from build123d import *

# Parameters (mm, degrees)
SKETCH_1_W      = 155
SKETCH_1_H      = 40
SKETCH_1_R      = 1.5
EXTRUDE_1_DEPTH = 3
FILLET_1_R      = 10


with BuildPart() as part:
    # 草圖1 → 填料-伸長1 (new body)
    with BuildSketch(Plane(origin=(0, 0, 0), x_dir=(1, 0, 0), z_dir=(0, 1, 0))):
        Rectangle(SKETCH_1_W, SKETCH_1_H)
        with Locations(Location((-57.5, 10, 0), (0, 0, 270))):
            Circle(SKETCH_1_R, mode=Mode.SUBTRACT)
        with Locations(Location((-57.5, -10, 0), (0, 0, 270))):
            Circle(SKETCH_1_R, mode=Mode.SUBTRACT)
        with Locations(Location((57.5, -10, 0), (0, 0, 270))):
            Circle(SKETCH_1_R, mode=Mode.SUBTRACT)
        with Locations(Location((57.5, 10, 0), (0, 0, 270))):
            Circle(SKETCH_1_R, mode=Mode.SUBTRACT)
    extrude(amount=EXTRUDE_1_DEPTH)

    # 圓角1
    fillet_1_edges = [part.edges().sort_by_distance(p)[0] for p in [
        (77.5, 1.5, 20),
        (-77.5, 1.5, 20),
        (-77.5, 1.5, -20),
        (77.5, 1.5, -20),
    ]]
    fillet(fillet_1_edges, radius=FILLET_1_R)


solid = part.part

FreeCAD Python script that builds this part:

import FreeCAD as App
import Part
import Sketcher

V = App.Vector
Q = App.Units.Quantity


def edges_at(feature, points):
    """Names of the edges that pass closest to the given points."""
    edges = feature.Shape.Edges
    near = lambda p: min(range(len(edges)), key=lambda i: edges[i].distToShape(Part.Vertex(*p))[0])
    return sorted({f"Edge{near(p) + 1}" for p in points})

doc = App.newDocument("Part")
params = doc.addObject("Spreadsheet::Sheet", "Params")
for row, (alias, value) in enumerate([
    ("sketch1_diameter", "3 mm"),
    ("sketch1_width", "155 mm"),
    ("sketch1_height", "40 mm"),
    ("pad1_length", "3 mm"),
    ("fillet_radius", "10 mm"),
], start=1):
    params.set(f"A{row}", alias)
    params.set(f"B{row}", "=" + value)
    params.setAlias(f"B{row}", alias)

body = doc.addObject("PartDesign::Body", "Body")

# Sketch on XZ plane
sketch1 = body.newObject("Sketcher::SketchObject", "Sketch")
sketch1.AttachmentSupport = (doc.getObject("XZ_Plane"), [""])
sketch1.MapMode = "FlatFace"
sketch1.addGeometry([
    Part.LineSegment(V(-77.5, -20, 0), V(-77.5, 20, 0)),  # 0
    Part.LineSegment(V(-77.5, 20, 0), V(77.5, 20, 0)),  # 1
    Part.LineSegment(V(77.5, 20, 0), V(77.5, -20, 0)),  # 2
    Part.LineSegment(V(77.5, -20, 0), V(-77.5, -20, 0)),  # 3
    Part.Circle(V(-57.5, 10, 0), V(0, 0, 1), 1.5),  # 4
    Part.Circle(V(57.5, 10, 0), V(0, 0, 1), 1.5),  # 5
    Part.Circle(V(-57.5, -10, 0), V(0, 0, 1), 1.5),  # 6
    Part.Circle(V(57.5, -10, 0), V(0, 0, 1), 1.5),  # 7
], False)
sketch1.addConstraint([
    Sketcher.Constraint("Coincident", 0, 2, 1, 1),
    Sketcher.Constraint("Coincident", 1, 2, 2, 1),
    Sketcher.Constraint("Coincident", 2, 2, 3, 1),
    Sketcher.Constraint("Coincident", 3, 2, 0, 1),
    Sketcher.Constraint("Vertical", 0),
    Sketcher.Constraint("Horizontal", 1),
    Sketcher.Constraint("Vertical", 2),
    Sketcher.Constraint("Horizontal", 3),
    Sketcher.Constraint("Equal", 4, 5),
    Sketcher.Constraint("Equal", 5, 6),
    Sketcher.Constraint("Equal", 6, 7),
    Sketcher.Constraint("Symmetric", 5, 3, 6, 3, -1, 1),
    Sketcher.Constraint("Symmetric", 4, 3, 7, 3, -1, 1),
    Sketcher.Constraint("Symmetric", 0, 2, 2, 2, -1, 1),
    Sketcher.Constraint("Symmetric", 4, 3, 5, 3, -2),
    Sketcher.Constraint("Diameter", 4, Q("3 mm")),
    Sketcher.Constraint("DistanceX", 1, 1, 1, 2, Q("155 mm")),
    Sketcher.Constraint("DistanceY", 0, 1, 0, 2, Q("40 mm")),
    Sketcher.Constraint("DistanceY", -1, 1, 4, 3, Q("10 mm")),
    Sketcher.Constraint("DistanceX", 4, 3, 5, 3, Q("115 mm")),
])
sketch1.setExpression("Constraints[15]", "Params.sketch1_diameter")
sketch1.setExpression("Constraints[16]", "Params.sketch1_width")
sketch1.setExpression("Constraints[17]", "Params.sketch1_height")
pad1 = body.newObject("PartDesign::Pad", "Pad")
pad1.Profile = sketch1
pad1.setExpression("Length", "Params.pad1_length")
pad1.Reversed = True
doc.recompute()

fillet = body.newObject("PartDesign::Fillet", "Fillet")
fillet.Base = (pad1, edges_at(pad1, [
    (77.5, 1.5, 20),
    (-77.5, 1.5, 20),
    (-77.5, 1.5, -20),
    (77.5, 1.5, -20),
]))
fillet.setExpression("Radius", "Params.fillet_radius")

doc.recompute()
